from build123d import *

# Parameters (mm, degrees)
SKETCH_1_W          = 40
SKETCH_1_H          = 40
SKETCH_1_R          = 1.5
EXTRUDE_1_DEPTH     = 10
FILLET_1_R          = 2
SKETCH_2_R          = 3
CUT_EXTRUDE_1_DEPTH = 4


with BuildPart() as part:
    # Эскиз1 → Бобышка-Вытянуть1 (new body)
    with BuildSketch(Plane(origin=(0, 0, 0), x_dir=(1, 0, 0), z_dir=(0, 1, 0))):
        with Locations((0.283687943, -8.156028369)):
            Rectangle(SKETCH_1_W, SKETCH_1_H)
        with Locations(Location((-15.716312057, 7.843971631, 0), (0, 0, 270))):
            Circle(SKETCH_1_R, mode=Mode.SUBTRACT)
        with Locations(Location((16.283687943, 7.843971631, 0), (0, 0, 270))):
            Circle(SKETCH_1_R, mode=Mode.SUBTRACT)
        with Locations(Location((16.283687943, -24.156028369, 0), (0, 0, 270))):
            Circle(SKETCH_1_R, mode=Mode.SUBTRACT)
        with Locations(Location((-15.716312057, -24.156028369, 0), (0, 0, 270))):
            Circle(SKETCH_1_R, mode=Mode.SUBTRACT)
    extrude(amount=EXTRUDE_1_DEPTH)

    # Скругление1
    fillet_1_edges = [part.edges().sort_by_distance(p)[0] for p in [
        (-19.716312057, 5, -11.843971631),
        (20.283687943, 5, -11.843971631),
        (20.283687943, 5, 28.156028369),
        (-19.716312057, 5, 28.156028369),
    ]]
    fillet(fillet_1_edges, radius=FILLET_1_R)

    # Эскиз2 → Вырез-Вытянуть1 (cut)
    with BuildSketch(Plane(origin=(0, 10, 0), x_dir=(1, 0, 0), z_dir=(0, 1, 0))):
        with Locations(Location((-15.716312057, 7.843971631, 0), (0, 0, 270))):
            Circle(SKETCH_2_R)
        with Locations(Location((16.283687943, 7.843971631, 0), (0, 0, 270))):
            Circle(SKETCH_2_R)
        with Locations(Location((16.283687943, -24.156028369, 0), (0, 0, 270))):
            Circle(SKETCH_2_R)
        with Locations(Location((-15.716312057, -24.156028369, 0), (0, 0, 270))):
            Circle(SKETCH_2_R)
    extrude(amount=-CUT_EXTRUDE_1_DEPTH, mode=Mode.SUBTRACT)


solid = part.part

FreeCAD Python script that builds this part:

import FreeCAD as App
import Part
import Sketcher

V = App.Vector
Q = App.Units.Quantity


def edges_at(feature, points):
    """Names of the edges that pass closest to the given points."""
    edges = feature.Shape.Edges
    near = lambda p: min(range(len(edges)), key=lambda i: edges[i].distToShape(Part.Vertex(*p))[0])
    return sorted({f"Edge{near(p) + 1}" for p in points})


def add_polygon(sketch, points):
    """Adds a closed chain of lines whose ends are joined by coincident constraints."""
    first, n = sketch.GeometryCount, len(points)
    for a, b in zip(points, points[1:] + points[:1]):
        sketch.addGeometry(Part.LineSegment(App.Vector(*a, 0), App.Vector(*b, 0)), False)
    for i in range(n):
        sketch.addConstraint(Sketcher.Constraint("Coincident", first + i, 2, first + (i + 1) % n, 1))

doc = App.newDocument("Part")
body = doc.addObject("PartDesign::Body", "Body")

# Sketch on XZ plane
sketch1 = body.newObject("Sketcher::SketchObject", "Sketch")
sketch1.AttachmentSupport = (doc.getObject("XZ_Plane"), [""])
sketch1.MapMode = "FlatFace"
add_polygon(sketch1, [(-19.7, -11.8), (-19.7, 28.2), (20.3, 28.2), (20.3, -11.8)])  # lines 0-3
sketch1.addGeometry(Part.Circle(V(-15.7, 24.2, 0), V(0, 0, 1), 1.5), False)  # 4
sketch1.addGeometry(Part.Circle(V(16.3, 24.2, 0), V(0, 0, 1), 1.5), False)  # 5
sketch1.addGeometry(Part.Circle(V(-15.7, -7.8, 0), V(0, 0, 1), 1.5), False)  # 6
sketch1.addGeometry(Part.Circle(V(16.3, -7.8, 0), V(0, 0, 1), 1.5), False)  # 7
sketch1.addConstraint(Sketcher.Constraint("Vertical", 0))
sketch1.addConstraint(Sketcher.Constraint("Horizontal", 1))
sketch1.addConstraint(Sketcher.Constraint("Vertical", 2))
sketch1.addConstraint(Sketcher.Constraint("Horizontal", 3))
sketch1.addConstraint(Sketcher.Constraint("Equal", 4, 5))
sketch1.addConstraint(Sketcher.Constraint("Equal", 5, 6))
sketch1.addConstraint(Sketcher.Constraint("Equal", 6, 7))
sketch1.addConstraint(Sketcher.Constraint("Horizontal", 4, 3, 5, 3))
sketch1.addConstraint(Sketcher.Constraint("Horizontal", 6, 3, 7, 3))
sketch1.addConstraint(Sketcher.Constraint("Vertical", 4, 3, 6, 3))
sketch1.addConstraint(Sketcher.Constraint("Vertical", 5, 3, 7, 3))
sketch1.addConstraint(Sketcher.Constraint("Equal", 3, 0))
sketch1.addConstraint(Sketcher.Constraint("Diameter", 4, Q("3 mm")))
sketch1.addConstraint(Sketcher.Constraint("DistanceX", 1, 1, 1, 2, Q("40 mm")))
sketch1.addConstraint(Sketcher.Constraint("DistanceX", 4, 3, 5, 3, Q("32 mm")))
sketch1.addConstraint(Sketcher.Constraint("DistanceY", 6, 3, 4, 3, Q("32 mm")))
sketch1.addConstraint(Sketcher.Constraint("DistanceX", 0, 2, 4, 3, Q("4 mm")))
sketch1.addConstraint(Sketcher.Constraint("DistanceY", 4, 3, 0, 2, Q("4 mm")))
sketch1.addConstraint(Sketcher.Constraint("DistanceY", -1, 1, 4, 3, Q("24.156028 mm")))
sketch1.addConstraint(Sketcher.Constraint("DistanceX", 4, 3, -1, 1, Q("15.716312 mm")))
pad1 = body.newObject("PartDesign::Pad", "Pad")
pad1.Profile = sketch1
pad1.Length = 10
pad1.Reversed = True
doc.recompute()

fillet = body.newObject("PartDesign::Fillet", "Fillet")
fillet.Base = (pad1, edges_at(pad1, [
    (-19.716, 5, -11.844),
    (20.284, 5, -11.844),
    (20.284, 5, 28.156),
    (-19.716, 5, 28.156),
]))
fillet.Radius = 2

# Sketch on XZ plane
sketch2 = body.newObject("Sketcher::SketchObject", "Sketch001")
sketch2.AttachmentSupport = (doc.getObject("XZ_Plane"), [""])
sketch2.MapMode = "FlatFace"
sketch2.AttachmentOffset = App.Placement(V(0, 0, -10), App.Rotation())
sketch2.addGeometry(Part.Circle(V(-15.7, -7.8, 0), V(0, 0, 1), 3), False)
sketch2.addGeometry(Part.Circle(V(16.3, -7.8, 0), V(0, 0, 1), 3), False)
sketch2.addGeometry(Part.Circle(V(16.3, 24.2, 0), V(0, 0, 1), 3), False)
sketch2.addGeometry(Part.Circle(V(-15.7, 24.2, 0), V(0, 0, 1), 3), False)
sketch2.addConstraint(Sketcher.Constraint("Equal", 0, 1))
sketch2.addConstraint(Sketcher.Constraint("Equal", 1, 2))
sketch2.addConstraint(Sketcher.Constraint("Equal", 2, 3))
sketch2.addConstraint(Sketcher.Constraint("Horizontal", 0, 3, 1, 3))
sketch2.addConstraint(Sketcher.Constraint("Horizontal", 2, 3, 3, 3))
sketch2.addConstraint(Sketcher.Constraint("Vertical", 1, 3, 2, 3))
sketch2.addConstraint(Sketcher.Constraint("Vertical", 0, 3, 3, 3))
sketch2.addConstraint(Sketcher.Constraint("Diameter", 0, Q("6 mm")))
sketch2.addConstraint(Sketcher.Constraint("DistanceX", 0, 3, 1, 3, Q("32 mm")))
sketch2.addConstraint(Sketcher.Constraint("DistanceY", 1, 3, 2, 3, Q("32 mm")))
sketch2.addConstraint(Sketcher.Constraint("DistanceY", 0, 3, -1, 1, Q("7.843972 mm")))
sketch2.addConstraint(Sketcher.Constraint("DistanceX", 0, 3, -1, 1, Q("15.716312 mm")))
pocket1 = body.newObject("PartDesign::Pocket", "Pocket")
pocket1.Profile = sketch2
pocket1.Length = 4
pocket1.Reversed = True

doc.recompute()
